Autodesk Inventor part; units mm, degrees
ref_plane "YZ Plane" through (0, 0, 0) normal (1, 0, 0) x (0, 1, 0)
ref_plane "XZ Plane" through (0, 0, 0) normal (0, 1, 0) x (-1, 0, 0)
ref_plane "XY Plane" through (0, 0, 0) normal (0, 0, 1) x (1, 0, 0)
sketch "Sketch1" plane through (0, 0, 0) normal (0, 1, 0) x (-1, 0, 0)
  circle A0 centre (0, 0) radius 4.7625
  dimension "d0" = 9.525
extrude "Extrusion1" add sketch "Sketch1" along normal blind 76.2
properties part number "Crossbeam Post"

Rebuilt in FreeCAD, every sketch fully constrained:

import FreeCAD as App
import Part
import Sketcher

V = App.Vector
Q = App.Units.Quantity

doc = App.newDocument("Part")
body = doc.addObject("PartDesign::Body", "Body")

sketch1 = body.newObject("Sketcher::SketchObject", "Sketch")
sketch1.AttachmentSupport = (doc.getObject("XZ_Plane"), [""])
sketch1.MapMode = "FlatFace"
sketch1.addGeometry(Part.Circle(V(0, 0, 0), V(0, 0, 1), 4.7625), False)
sketch1.addConstraint(Sketcher.Constraint("Coincident", 0, 3, -1, 1))
sketch1.addConstraint(Sketcher.Constraint("Diameter", 0, Q("0.375 in")))
pad1 = body.newObject("PartDesign::Pad", "Pad")
pad1.Profile = sketch1
pad1.Length = Q("3 in")
pad1.Reversed = True

doc.recompute()
